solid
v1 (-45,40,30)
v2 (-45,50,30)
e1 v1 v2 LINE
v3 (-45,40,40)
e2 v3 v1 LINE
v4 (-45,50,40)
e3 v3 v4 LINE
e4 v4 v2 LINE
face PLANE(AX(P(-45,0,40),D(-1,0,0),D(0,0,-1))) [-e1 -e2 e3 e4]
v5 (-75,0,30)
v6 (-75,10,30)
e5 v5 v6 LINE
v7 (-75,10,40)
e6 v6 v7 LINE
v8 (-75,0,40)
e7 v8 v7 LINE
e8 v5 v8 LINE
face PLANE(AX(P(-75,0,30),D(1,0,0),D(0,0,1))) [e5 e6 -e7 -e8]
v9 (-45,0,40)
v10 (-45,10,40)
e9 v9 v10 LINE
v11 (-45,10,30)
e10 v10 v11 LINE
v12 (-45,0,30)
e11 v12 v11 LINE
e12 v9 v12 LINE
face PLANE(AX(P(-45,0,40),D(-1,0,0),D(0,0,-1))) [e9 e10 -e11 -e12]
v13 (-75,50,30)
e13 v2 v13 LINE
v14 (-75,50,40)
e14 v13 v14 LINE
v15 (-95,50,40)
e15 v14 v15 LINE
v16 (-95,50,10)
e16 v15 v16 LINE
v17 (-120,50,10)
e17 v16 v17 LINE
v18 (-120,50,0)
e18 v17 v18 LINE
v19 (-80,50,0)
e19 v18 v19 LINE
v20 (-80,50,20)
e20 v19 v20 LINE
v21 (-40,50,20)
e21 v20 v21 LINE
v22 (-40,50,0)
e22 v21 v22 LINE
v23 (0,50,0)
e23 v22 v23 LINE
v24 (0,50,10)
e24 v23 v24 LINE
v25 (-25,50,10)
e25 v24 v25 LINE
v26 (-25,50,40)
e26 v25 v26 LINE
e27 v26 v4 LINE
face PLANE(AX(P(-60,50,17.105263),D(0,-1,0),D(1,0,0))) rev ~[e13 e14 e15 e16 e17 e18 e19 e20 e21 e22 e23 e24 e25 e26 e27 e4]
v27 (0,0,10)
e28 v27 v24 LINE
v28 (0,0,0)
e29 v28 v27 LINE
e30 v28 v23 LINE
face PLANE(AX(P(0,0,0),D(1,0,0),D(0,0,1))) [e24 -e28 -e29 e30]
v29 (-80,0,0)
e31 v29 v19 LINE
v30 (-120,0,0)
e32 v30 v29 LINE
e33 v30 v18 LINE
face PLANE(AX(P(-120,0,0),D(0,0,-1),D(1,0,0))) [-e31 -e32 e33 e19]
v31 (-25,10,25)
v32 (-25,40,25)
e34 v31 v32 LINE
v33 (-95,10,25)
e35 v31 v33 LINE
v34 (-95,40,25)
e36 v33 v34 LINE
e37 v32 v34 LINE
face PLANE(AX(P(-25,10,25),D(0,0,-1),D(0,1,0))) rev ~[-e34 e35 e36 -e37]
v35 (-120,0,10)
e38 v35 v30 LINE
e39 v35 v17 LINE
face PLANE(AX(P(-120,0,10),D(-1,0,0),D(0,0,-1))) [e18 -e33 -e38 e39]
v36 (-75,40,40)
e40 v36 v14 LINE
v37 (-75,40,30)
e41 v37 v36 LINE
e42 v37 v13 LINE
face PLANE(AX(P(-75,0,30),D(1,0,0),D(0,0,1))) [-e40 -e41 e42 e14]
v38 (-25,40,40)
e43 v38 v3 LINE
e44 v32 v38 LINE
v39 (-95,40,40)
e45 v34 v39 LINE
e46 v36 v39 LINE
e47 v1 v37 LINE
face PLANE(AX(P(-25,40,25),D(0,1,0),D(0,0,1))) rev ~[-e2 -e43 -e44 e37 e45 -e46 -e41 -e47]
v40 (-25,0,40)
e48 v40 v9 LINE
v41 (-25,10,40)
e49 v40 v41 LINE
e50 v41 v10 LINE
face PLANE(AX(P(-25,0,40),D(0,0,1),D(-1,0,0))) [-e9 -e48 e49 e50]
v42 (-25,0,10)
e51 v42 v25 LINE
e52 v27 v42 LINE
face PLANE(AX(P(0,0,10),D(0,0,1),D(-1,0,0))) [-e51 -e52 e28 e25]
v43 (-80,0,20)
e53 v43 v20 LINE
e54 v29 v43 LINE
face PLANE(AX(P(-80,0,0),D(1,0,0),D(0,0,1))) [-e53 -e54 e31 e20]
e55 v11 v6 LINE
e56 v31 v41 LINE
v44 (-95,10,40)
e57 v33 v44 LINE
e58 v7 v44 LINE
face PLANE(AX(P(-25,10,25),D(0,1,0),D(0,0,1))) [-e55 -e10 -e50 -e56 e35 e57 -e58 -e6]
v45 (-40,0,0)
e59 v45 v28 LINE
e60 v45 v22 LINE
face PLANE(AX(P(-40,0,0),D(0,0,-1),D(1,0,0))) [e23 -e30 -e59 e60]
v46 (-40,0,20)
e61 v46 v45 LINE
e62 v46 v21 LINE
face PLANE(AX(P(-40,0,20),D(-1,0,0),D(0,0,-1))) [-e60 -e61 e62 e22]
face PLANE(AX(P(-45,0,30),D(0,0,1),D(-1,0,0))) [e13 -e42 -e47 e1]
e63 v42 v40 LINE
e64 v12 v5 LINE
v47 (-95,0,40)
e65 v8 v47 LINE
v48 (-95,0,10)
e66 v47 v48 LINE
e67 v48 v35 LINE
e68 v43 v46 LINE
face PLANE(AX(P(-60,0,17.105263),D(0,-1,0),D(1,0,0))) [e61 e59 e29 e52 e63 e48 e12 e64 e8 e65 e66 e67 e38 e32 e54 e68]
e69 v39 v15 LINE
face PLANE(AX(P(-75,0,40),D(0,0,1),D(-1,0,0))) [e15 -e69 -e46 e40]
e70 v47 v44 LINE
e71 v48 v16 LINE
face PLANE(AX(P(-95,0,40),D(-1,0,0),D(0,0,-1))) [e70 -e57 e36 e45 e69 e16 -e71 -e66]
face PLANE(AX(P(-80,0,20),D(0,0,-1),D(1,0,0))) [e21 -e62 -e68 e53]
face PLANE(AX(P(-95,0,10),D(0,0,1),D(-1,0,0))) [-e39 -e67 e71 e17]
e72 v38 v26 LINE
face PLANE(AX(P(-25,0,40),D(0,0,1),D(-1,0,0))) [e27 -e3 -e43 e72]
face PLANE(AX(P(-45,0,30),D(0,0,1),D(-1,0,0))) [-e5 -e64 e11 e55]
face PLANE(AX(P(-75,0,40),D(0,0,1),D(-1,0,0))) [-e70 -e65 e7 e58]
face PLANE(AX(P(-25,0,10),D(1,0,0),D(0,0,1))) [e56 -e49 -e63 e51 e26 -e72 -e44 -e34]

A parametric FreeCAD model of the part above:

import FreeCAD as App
import Part
import Sketcher
from FreeCAD import Vector
Q = App.Units.Quantity

doc = App.newDocument("Part")
body = doc.addObject("PartDesign::Body", "Body")

# Sketch on XZ plane
sketch1 = body.newObject("Sketcher::SketchObject", "Sketch")
sketch1.AttachmentSupport = (doc.getObject("XZ_Plane"), [""])
sketch1.MapMode = "FlatFace"
sketch1.addGeometry(Part.LineSegment(Vector(-40, 0, 0), Vector(0, 0, 0)), False)
sketch1.addGeometry(Part.LineSegment(Vector(0, 0, 0), Vector(0, 10, 0)), False)
sketch1.addGeometry(Part.LineSegment(Vector(0, 10, 0), Vector(-25, 10, 0)), False)
sketch1.addGeometry(Part.LineSegment(Vector(-25, 10, 0), Vector(-25, 40, 0)), False)
sketch1.addGeometry(Part.LineSegment(Vector(-25, 40, 0), Vector(-45, 40, 0)), False)
sketch1.addGeometry(Part.LineSegment(Vector(-45, 40, 0), Vector(-45, 30, 0)), False)
sketch1.addGeometry(Part.LineSegment(Vector(-45, 30, 0), Vector(-75, 30, 0)), False)
sketch1.addGeometry(Part.LineSegment(Vector(-75, 30, 0), Vector(-75, 40, 0)), False)
sketch1.addGeometry(Part.LineSegment(Vector(-75, 40, 0), Vector(-95, 40, 0)), False)
sketch1.addGeometry(Part.LineSegment(Vector(-95, 40, 0), Vector(-95, 10, 0)), False)
sketch1.addGeometry(Part.LineSegment(Vector(-95, 10, 0), Vector(-120, 10, 0)), False)
sketch1.addGeometry(Part.LineSegment(Vector(-120, 10, 0), Vector(-120, 0, 0)), False)
sketch1.addGeometry(Part.LineSegment(Vector(-120, 0, 0), Vector(-80, 0, 0)), False)
sketch1.addGeometry(Part.LineSegment(Vector(-80, 0, 0), Vector(-80, 20, 0)), False)
sketch1.addGeometry(Part.LineSegment(Vector(-80, 20, 0), Vector(-40, 20, 0)), False)
sketch1.addGeometry(Part.LineSegment(Vector(-40, 20, 0), Vector(-40, 0, 0)), False)
sketch1.addConstraint(Sketcher.Constraint("Coincident", 0, 2, 1, 1))
sketch1.addConstraint(Sketcher.Constraint("Coincident", 1, 2, 2, 1))
sketch1.addConstraint(Sketcher.Constraint("Coincident", 2, 2, 3, 1))
sketch1.addConstraint(Sketcher.Constraint("Coincident", 3, 2, 4, 1))
sketch1.addConstraint(Sketcher.Constraint("Coincident", 4, 2, 5, 1))
sketch1.addConstraint(Sketcher.Constraint("Coincident", 5, 2, 6, 1))
sketch1.addConstraint(Sketcher.Constraint("Coincident", 6, 2, 7, 1))
sketch1.addConstraint(Sketcher.Constraint("Coincident", 7, 2, 8, 1))
sketch1.addConstraint(Sketcher.Constraint("Coincident", 8, 2, 9, 1))
sketch1.addConstraint(Sketcher.Constraint("Coincident", 9, 2, 10, 1))
sketch1.addConstraint(Sketcher.Constraint("Coincident", 10, 2, 11, 1))
sketch1.addConstraint(Sketcher.Constraint("Coincident", 11, 2, 12, 1))
sketch1.addConstraint(Sketcher.Constraint("Coincident", 12, 2, 13, 1))
sketch1.addConstraint(Sketcher.Constraint("Coincident", 13, 2, 14, 1))
sketch1.addConstraint(Sketcher.Constraint("Coincident", 14, 2, 15, 1))
sketch1.addConstraint(Sketcher.Constraint("Coincident", 15, 2, 0, 1))
sketch1.addConstraint(Sketcher.Constraint("Horizontal", 0))
sketch1.addConstraint(Sketcher.Constraint("Vertical", 1))
sketch1.addConstraint(Sketcher.Constraint("Horizontal", 2))
sketch1.addConstraint(Sketcher.Constraint("Vertical", 3))
sketch1.addConstraint(Sketcher.Constraint("Horizontal", 4))
sketch1.addConstraint(Sketcher.Constraint("Vertical", 5))
sketch1.addConstraint(Sketcher.Constraint("Horizontal", 6))
sketch1.addConstraint(Sketcher.Constraint("Vertical", 7))
sketch1.addConstraint(Sketcher.Constraint("Horizontal", 8))
sketch1.addConstraint(Sketcher.Constraint("Vertical", 9))
sketch1.addConstraint(Sketcher.Constraint("Horizontal", 10))
sketch1.addConstraint(Sketcher.Constraint("Vertical", 11))
sketch1.addConstraint(Sketcher.Constraint("Horizontal", 12))
sketch1.addConstraint(Sketcher.Constraint("Vertical", 13))
sketch1.addConstraint(Sketcher.Constraint("Horizontal", 14))
sketch1.addConstraint(Sketcher.Constraint("Vertical", 15))
sketch1.addConstraint(Sketcher.Constraint("Coincident", 0, 2, -1, 1))
sketch1.addConstraint(Sketcher.Constraint("PointOnObject", 11, 2, -1))
sketch1.addConstraint(Sketcher.Constraint("Horizontal", 4, 2, 7, 2))
sketch1.addConstraint(Sketcher.Constraint("Horizontal", 2, 2, 9, 2))
sketch1.addConstraint(Sketcher.Constraint("Equal", 4, 8))
sketch1.addConstraint(Sketcher.Constraint("Equal", 2, 10))
sketch1.addConstraint(Sketcher.Constraint("Equal", 0, 12))
sketch1.addConstraint(Sketcher.Constraint("Equal", 12, 14))
sketch1.addConstraint(Sketcher.Constraint("Equal", 6, 3))
sketch1.addConstraint(Sketcher.Constraint("Equal", 1, 5))
sketch1.addConstraint(Sketcher.Constraint("Equal", 8, 13))
sketch1.addConstraint(Sketcher.Constraint("DistanceX", 0, 1, 0, 2, Q("40 mm")))
sketch1.addConstraint(Sketcher.Constraint("DistanceX", 2, 2, 2, 1, Q("25 mm")))
sketch1.addConstraint(Sketcher.Constraint("DistanceX", 4, 2, 4, 1, Q("20 mm")))
sketch1.addConstraint(Sketcher.Constraint("DistanceY", 1, 1, 1, 2, Q("10 mm")))
pad1 = body.newObject("PartDesign::Pad", "Pad")
pad1.Profile = sketch1
pad1.Length = 50
pad1.Reversed = True

# Sketch on YZ plane
sketch2 = body.newObject("Sketcher::SketchObject", "Sketch001")
sketch2.AttachmentSupport = (doc.getObject("YZ_Plane"), [""])
sketch2.MapMode = "FlatFace"
sketch2.AttachmentOffset = App.Placement(Vector(0, 0, -25), App.Rotation())
sketch2.addGeometry(Part.LineSegment(Vector(10, 55, 0), Vector(10, 25, 0)), False)
sketch2.addGeometry(Part.LineSegment(Vector(10, 25, 0), Vector(40, 25, 0)), False)
sketch2.addGeometry(Part.LineSegment(Vector(40, 25, 0), Vector(40, 55, 0)), False)
sketch2.addGeometry(Part.LineSegment(Vector(40, 55, 0), Vector(10, 55, 0)), False)
sketch2.addConstraint(Sketcher.Constraint("Coincident", 0, 2, 1, 1))
sketch2.addConstraint(Sketcher.Constraint("Coincident", 1, 2, 2, 1))
sketch2.addConstraint(Sketcher.Constraint("Coincident", 2, 2, 3, 1))
sketch2.addConstraint(Sketcher.Constraint("Coincident", 3, 2, 0, 1))
sketch2.addConstraint(Sketcher.Constraint("Vertical", 0))
sketch2.addConstraint(Sketcher.Constraint("Horizontal", 1))
sketch2.addConstraint(Sketcher.Constraint("Vertical", 2))
sketch2.addConstraint(Sketcher.Constraint("Horizontal", 3))
sketch2.addConstraint(Sketcher.Constraint("Equal", 3, 0))
sketch2.addConstraint(Sketcher.Constraint("DistanceX", 1, 1, 1, 2, Q("30 mm")))
sketch2.addConstraint(Sketcher.Constraint("DistanceX", -1, 1, 0, 2, Q("10 mm")))
sketch2.addConstraint(Sketcher.Constraint("DistanceY", -1, 1, 0, 2, Q("25 mm")))
pocket1 = body.newObject("PartDesign::Pocket", "Pocket")
pocket1.Profile = sketch2
pocket1.Length = 70

doc.recompute()
